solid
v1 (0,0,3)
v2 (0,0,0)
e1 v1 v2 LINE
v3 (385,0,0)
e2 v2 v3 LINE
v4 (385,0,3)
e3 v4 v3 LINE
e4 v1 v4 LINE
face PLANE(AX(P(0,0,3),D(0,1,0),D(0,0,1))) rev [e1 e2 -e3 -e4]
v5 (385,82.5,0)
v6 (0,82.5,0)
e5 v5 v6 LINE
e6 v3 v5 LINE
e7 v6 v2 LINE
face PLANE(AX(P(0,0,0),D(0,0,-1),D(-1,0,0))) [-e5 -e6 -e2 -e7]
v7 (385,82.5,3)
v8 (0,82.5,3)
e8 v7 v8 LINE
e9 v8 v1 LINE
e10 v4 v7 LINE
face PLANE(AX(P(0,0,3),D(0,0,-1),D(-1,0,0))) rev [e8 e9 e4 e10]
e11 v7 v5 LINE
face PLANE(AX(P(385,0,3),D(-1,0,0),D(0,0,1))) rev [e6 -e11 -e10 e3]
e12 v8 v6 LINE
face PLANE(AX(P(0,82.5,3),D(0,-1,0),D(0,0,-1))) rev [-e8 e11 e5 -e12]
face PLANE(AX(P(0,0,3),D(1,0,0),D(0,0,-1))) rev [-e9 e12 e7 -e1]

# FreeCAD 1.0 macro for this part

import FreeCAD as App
import Part
import Sketcher

V = App.Vector


def add_polygon(sketch, points):
    """Adds a closed chain of lines whose ends are joined by coincident constraints."""
    first, n = sketch.GeometryCount, len(points)
    for a, b in zip(points, points[1:] + points[:1]):
        sketch.addGeometry(Part.LineSegment(App.Vector(*a, 0), App.Vector(*b, 0)), False)
    for i in range(n):
        sketch.addConstraint(Sketcher.Constraint("Coincident", first + i, 2, first + (i + 1) % n, 1))

doc = App.newDocument("Part")
body = doc.addObject("PartDesign::Body", "Body")

# Sketch on XY plane
sketch1 = body.newObject("Sketcher::SketchObject", "Sketch")
sketch1.AttachmentSupport = (doc.getObject("XY_Plane"), [""])
sketch1.MapMode = "FlatFace"
add_polygon(sketch1, [(0, 82), (0, 0), (385, 0), (385, 82)])  # lines 0-3
sketch1.addConstraint([
    Sketcher.Constraint("Vertical", 0),
    Sketcher.Constraint("Horizontal", 1),
    Sketcher.Constraint("Vertical", 2),
    Sketcher.Constraint("Horizontal", 3),
    Sketcher.Constraint("Coincident", 0, 2, -1, 1),
    Sketcher.Constraint("DistanceX", 1, 1, 1, 2, 385.0),
    Sketcher.Constraint("DistanceY", 0, 2, 0, 1, 82.5),
])
pad1 = body.newObject("PartDesign::Pad", "Pad")
pad1.Profile = sketch1
pad1.Length = 3

doc.recompute()
